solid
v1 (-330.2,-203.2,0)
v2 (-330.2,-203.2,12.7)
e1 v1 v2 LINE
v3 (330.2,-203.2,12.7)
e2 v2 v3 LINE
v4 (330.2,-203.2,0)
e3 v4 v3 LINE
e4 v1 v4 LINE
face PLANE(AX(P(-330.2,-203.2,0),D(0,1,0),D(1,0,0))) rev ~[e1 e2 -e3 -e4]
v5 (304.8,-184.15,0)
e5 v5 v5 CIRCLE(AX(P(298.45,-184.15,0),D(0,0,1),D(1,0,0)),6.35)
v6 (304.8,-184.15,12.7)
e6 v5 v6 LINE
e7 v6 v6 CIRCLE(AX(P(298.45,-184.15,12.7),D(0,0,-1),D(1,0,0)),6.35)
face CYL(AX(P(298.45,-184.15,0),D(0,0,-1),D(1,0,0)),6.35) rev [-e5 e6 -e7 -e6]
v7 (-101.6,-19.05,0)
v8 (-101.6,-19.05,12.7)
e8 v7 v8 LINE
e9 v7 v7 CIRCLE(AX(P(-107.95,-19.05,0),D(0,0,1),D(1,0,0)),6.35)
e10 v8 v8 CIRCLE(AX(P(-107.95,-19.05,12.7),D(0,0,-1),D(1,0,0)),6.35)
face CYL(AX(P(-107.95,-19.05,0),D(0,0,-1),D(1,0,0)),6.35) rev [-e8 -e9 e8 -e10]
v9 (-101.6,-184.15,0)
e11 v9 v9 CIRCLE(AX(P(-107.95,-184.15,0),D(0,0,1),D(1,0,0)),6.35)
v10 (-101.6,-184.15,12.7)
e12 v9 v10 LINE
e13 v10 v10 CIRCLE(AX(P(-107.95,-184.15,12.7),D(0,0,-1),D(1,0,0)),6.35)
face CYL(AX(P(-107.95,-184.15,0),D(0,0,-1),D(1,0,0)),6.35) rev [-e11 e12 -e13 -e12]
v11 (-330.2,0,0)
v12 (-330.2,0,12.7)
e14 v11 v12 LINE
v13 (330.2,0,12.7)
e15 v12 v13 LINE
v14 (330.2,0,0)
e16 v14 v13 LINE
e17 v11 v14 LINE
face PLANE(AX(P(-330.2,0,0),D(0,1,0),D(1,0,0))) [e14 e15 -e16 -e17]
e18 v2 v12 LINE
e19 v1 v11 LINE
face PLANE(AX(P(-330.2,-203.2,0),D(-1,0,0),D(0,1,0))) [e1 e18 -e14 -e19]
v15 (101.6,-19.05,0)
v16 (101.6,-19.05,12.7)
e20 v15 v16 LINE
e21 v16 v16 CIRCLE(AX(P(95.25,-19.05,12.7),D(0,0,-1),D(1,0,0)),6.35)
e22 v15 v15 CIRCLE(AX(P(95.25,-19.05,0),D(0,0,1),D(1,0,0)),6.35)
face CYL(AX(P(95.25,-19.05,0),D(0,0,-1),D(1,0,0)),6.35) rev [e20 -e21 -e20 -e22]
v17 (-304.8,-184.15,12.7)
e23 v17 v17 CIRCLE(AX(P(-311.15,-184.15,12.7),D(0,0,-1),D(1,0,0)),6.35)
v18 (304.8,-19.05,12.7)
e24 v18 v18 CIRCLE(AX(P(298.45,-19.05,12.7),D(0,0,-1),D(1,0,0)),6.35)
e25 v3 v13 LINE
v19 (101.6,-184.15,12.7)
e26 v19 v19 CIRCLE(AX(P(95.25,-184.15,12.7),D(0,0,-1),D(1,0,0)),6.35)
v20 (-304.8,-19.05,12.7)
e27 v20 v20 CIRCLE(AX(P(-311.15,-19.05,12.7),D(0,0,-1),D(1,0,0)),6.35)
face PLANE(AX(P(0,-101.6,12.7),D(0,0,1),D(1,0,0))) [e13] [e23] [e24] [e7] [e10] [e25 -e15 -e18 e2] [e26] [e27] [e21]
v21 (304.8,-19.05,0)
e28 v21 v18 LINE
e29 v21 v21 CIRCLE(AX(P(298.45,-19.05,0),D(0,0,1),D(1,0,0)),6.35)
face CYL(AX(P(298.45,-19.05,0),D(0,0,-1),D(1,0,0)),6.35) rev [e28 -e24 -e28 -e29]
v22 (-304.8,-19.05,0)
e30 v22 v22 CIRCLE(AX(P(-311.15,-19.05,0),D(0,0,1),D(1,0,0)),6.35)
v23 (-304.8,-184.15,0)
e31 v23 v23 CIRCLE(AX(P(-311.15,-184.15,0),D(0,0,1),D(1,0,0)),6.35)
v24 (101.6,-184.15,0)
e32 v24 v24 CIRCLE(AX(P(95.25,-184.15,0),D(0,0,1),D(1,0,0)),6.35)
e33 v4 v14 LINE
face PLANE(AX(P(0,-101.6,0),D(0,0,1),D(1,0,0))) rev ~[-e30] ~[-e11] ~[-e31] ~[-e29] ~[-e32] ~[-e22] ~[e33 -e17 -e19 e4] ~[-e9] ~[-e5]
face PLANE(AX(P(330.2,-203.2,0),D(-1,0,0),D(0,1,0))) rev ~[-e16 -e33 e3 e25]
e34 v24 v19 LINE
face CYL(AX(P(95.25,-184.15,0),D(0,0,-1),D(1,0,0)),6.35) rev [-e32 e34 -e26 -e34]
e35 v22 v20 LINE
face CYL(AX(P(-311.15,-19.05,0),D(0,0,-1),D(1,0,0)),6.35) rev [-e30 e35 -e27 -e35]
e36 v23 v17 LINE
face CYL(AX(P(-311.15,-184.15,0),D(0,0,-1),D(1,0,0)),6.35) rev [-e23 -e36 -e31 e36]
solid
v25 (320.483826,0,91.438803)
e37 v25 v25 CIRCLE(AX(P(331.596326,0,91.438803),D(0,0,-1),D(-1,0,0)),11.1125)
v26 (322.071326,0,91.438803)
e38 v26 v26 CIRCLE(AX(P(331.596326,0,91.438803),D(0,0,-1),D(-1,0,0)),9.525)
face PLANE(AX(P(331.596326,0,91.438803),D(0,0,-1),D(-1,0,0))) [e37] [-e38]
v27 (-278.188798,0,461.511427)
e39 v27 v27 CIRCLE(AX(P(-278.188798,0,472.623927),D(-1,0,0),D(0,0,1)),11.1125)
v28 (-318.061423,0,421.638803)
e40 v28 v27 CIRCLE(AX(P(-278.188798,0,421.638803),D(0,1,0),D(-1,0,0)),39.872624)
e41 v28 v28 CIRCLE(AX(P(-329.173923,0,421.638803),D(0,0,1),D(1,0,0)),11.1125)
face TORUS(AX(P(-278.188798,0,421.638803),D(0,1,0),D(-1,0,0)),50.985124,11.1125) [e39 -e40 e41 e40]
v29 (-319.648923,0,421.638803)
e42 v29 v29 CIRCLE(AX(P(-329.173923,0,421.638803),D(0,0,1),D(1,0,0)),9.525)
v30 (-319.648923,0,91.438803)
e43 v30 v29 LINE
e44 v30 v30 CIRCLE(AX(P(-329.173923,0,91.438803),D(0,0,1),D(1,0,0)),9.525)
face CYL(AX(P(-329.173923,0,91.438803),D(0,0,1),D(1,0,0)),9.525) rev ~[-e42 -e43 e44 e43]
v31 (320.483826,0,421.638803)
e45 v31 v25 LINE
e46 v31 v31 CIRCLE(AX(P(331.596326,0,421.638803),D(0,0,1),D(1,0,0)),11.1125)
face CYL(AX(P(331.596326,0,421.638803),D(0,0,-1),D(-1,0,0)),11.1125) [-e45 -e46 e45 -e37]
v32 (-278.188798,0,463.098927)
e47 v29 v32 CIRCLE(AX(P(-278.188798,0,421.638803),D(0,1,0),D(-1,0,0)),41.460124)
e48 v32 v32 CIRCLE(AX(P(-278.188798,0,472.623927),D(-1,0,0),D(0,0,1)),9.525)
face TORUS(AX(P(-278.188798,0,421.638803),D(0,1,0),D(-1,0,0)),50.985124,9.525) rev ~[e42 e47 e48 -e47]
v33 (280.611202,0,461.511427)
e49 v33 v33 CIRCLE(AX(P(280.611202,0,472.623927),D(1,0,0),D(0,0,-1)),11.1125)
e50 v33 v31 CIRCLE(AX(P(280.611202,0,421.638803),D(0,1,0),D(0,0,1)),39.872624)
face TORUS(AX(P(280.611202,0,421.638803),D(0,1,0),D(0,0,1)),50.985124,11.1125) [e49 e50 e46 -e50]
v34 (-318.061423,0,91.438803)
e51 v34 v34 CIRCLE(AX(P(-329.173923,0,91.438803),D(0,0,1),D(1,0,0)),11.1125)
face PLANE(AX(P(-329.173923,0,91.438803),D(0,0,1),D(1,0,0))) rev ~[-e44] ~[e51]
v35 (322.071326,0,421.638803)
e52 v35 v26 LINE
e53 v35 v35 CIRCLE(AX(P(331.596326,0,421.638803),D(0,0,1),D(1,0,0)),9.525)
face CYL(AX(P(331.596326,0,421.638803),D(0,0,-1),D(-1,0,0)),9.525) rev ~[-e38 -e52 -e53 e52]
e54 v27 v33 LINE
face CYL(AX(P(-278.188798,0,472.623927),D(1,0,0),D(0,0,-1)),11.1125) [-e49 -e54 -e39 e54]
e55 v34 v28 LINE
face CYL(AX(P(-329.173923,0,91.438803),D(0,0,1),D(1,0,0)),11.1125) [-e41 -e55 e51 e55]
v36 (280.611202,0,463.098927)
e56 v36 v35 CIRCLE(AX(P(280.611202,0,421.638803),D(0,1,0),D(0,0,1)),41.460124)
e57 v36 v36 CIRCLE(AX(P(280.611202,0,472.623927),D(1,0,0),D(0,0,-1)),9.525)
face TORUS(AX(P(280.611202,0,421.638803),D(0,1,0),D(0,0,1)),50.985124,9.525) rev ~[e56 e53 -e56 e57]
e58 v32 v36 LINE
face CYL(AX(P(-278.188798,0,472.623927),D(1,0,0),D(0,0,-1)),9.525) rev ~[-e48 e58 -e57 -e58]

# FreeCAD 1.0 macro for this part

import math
import FreeCAD as App
import Part
import Sketcher

V = App.Vector
Q = App.Units.Quantity


def add_polygon(sketch, points):
    """Adds a closed chain of lines whose ends are joined by coincident constraints."""
    first, n = sketch.GeometryCount, len(points)
    for a, b in zip(points, points[1:] + points[:1]):
        sketch.addGeometry(Part.LineSegment(App.Vector(*a, 0), App.Vector(*b, 0)), False)
    for i in range(n):
        sketch.addConstraint(Sketcher.Constraint("Coincident", first + i, 2, first + (i + 1) % n, 1))

doc = App.newDocument("Part")
body = doc.addObject("PartDesign::Body", "Body")

sketch1 = body.newObject("Sketcher::SketchObject", "Sketch")
sketch1.AttachmentSupport = (doc.getObject("XY_Plane"), [""])
sketch1.MapMode = "FlatFace"
add_polygon(sketch1, [(-330, 0), (-330, -203), (330, -203), (330, 0)])
sketch1.addConstraint(Sketcher.Constraint("Vertical", 0))
sketch1.addConstraint(Sketcher.Constraint("Horizontal", 1))
sketch1.addConstraint(Sketcher.Constraint("Vertical", 2))
sketch1.addConstraint(Sketcher.Constraint("Horizontal", 3))
sketch1.addConstraint(Sketcher.Constraint("Symmetric", 2, 2, 3, 2, -1, 1))
sketch1.addConstraint(Sketcher.Constraint("DistanceX", 1, 1, 1, 2, Q("26 in")))
sketch1.addConstraint(Sketcher.Constraint("DistanceY", 0, 2, 0, 1, Q("8 in")))
pad1 = body.newObject("PartDesign::Pad", "Pad")
pad1.Profile = sketch1
pad1.Length = Q("0.5 in")

sketch2 = body.newObject("Sketcher::SketchObject", "Sketch001")
sketch2.AttachmentSupport = (doc.getObject("XY_Plane"), [""])
sketch2.MapMode = "FlatFace"
sketch2.addGeometry(Part.Circle(V(-311, -184, 0), V(0, 0, 1), 6), False)
sketch2.addGeometry(Part.Circle(V(-311, -19, 0), V(0, 0, 1), 6), False)
sketch2.addGeometry(Part.Circle(V(-108, -184, 0), V(0, 0, 1), 6), False)
sketch2.addGeometry(Part.Circle(V(-108, -19, 0), V(0, 0, 1), 6), False)
sketch2.addGeometry(Part.Circle(V(95, -184, 0), V(0, 0, 1), 6), False)
sketch2.addGeometry(Part.Circle(V(95, -19, 0), V(0, 0, 1), 6), False)
sketch2.addGeometry(Part.Circle(V(298, -184, 0), V(0, 0, 1), 6), False)
sketch2.addGeometry(Part.Circle(V(298, -19, 0), V(0, 0, 1), 6), False)
sketch2.addConstraint(Sketcher.Constraint("Equal", 0, 1))
sketch2.addConstraint(Sketcher.Constraint("Equal", 1, 2))
sketch2.addConstraint(Sketcher.Constraint("Equal", 2, 3))
sketch2.addConstraint(Sketcher.Constraint("Equal", 3, 4))
sketch2.addConstraint(Sketcher.Constraint("Equal", 4, 5))
sketch2.addConstraint(Sketcher.Constraint("Equal", 5, 6))
sketch2.addConstraint(Sketcher.Constraint("Equal", 6, 7))
sketch2.addConstraint(Sketcher.Constraint("Horizontal", 0, 3, 2, 3))
sketch2.addConstraint(Sketcher.Constraint("Horizontal", 1, 3, 3, 3))
sketch2.addConstraint(Sketcher.Constraint("Horizontal", 2, 3, 4, 3))
sketch2.addConstraint(Sketcher.Constraint("Horizontal", 3, 3, 5, 3))
sketch2.addConstraint(Sketcher.Constraint("Horizontal", 4, 3, 6, 3))
sketch2.addConstraint(Sketcher.Constraint("Horizontal", 5, 3, 7, 3))
sketch2.addConstraint(Sketcher.Constraint("Vertical", 0, 3, 1, 3))
sketch2.addConstraint(Sketcher.Constraint("Vertical", 2, 3, 3, 3))
sketch2.addConstraint(Sketcher.Constraint("Vertical", 4, 3, 5, 3))
sketch2.addConstraint(Sketcher.Constraint("Vertical", 6, 3, 7, 3))
sketch2.addConstraint(Sketcher.Constraint("Diameter", 0, Q("0.5 in")))
sketch2.addConstraint(Sketcher.Constraint("DistanceX", 0, 3, 2, 3, Q("8 in")))
sketch2.addConstraint(Sketcher.Constraint("DistanceX", 2, 3, 4, 3, Q("8 in")))
sketch2.addConstraint(Sketcher.Constraint("DistanceX", 4, 3, 6, 3, Q("8 in")))
sketch2.addConstraint(Sketcher.Constraint("DistanceY", 0, 3, 1, 3, Q("6.5 in")))
sketch2.addConstraint(Sketcher.Constraint("DistanceX", 0, 3, -1, 1, Q("12.25 in")))
sketch2.addConstraint(Sketcher.Constraint("DistanceY", 0, 3, -1, 1, Q("7.25 in")))
pocket1 = body.newObject("PartDesign::Pocket", "Pocket")
pocket1.Profile = sketch2
pocket1.Type = "ThroughAll"
pocket1.Reversed = True
body2 = doc.addObject("PartDesign::Body", "Body001")

sketch3 = body2.newObject("Sketcher::SketchObject", "Sketch002")
sketch3.AttachmentSupport = (doc.getObject("XY_Plane001"), [""])
sketch3.MapMode = "FlatFace"
sketch3.AttachmentOffset = App.Placement(V(0, 0, 91.438803), App.Rotation())
sketch3.addGeometry(Part.Circle(V(-329, 0, 0), V(0, 0, 1), 11), False)
sketch3.addGeometry(Part.Circle(V(-329, 0, 0), V(0, 0, 1), 10), False)
sketch3.addConstraint(Sketcher.Constraint("Coincident", 1, 3, 0, 3))
sketch3.addConstraint(Sketcher.Constraint("PointOnObject", 0, 3, -1))
sketch3.addConstraint(Sketcher.Constraint("Diameter", 1, Q("0.75 in")))
sketch3.addConstraint(Sketcher.Constraint("Diameter", 0, Q("0.875 in")))
sketch3.addConstraint(Sketcher.Constraint("DistanceX", 0, 3, -1, 1, 329.173923))

sketch4 = body2.newObject("Sketcher::SketchObject", "Sketch003")
sketch4.AttachmentSupport = (doc.getObject("XZ_Plane001"), [""])
sketch4.MapMode = "FlatFace"
sketch4.addGeometry(Part.LineSegment(V(-329, 91, 0), V(-329, 422, 0)), False)
sketch4.addGeometry(Part.ArcOfCircle(Part.Circle(V(-278, 422, 0), V(0, 0, 1), 51), math.radians(90), math.radians(180)), False)
sketch4.addGeometry(Part.LineSegment(V(-278, 472, 0), V(281, 472, 0)), False)
sketch4.addGeometry(Part.ArcOfCircle(Part.Circle(V(281, 422, 0), V(0, 0, 1), 51), math.radians(0), math.radians(90)), False)
sketch4.addGeometry(Part.LineSegment(V(331, 422, 0), V(331, 91, 0)), False)
sketch4.addConstraint(Sketcher.Constraint("Tangent", 0, 2, 1, 2))
sketch4.addConstraint(Sketcher.Constraint("Tangent", 1, 1, 2, 1))
sketch4.addConstraint(Sketcher.Constraint("Tangent", 2, 2, 3, 2))
sketch4.addConstraint(Sketcher.Constraint("Tangent", 3, 1, 4, 1))
sketch4.addConstraint(Sketcher.Constraint("Vertical", 0))
sketch4.addConstraint(Sketcher.Constraint("Horizontal", 2))
sketch4.addConstraint(Sketcher.Constraint("Vertical", 4))
sketch4.addConstraint(Sketcher.Constraint("Equal", 1, 3))
sketch4.addConstraint(Sketcher.Constraint("Horizontal", 0, 1, 4, 2))
sketch4.addConstraint(Sketcher.Constraint("Radius", 1, Q("2 in")))
sketch4.addConstraint(Sketcher.Constraint("DistanceX", 2, 1, 2, 2, Q("22 in")))
sketch4.addConstraint(Sketcher.Constraint("DistanceY", 0, 1, 0, 2, Q("13 in")))
sketch4.addConstraint(Sketcher.Constraint("DistanceX", 1, 3, -1, 1, 278.188798))
sketch4.addConstraint(Sketcher.Constraint("DistanceY", -1, 1, 1, 3, 421.638803))
doc.recompute()

additivepipe = body2.newObject("PartDesign::AdditivePipe", "AdditivePipe")
additivepipe.Profile = sketch3
additivepipe.Spine = (sketch4, ["Edge1", "Edge2", "Edge3", "Edge4", "Edge5"])

doc.recompute()
